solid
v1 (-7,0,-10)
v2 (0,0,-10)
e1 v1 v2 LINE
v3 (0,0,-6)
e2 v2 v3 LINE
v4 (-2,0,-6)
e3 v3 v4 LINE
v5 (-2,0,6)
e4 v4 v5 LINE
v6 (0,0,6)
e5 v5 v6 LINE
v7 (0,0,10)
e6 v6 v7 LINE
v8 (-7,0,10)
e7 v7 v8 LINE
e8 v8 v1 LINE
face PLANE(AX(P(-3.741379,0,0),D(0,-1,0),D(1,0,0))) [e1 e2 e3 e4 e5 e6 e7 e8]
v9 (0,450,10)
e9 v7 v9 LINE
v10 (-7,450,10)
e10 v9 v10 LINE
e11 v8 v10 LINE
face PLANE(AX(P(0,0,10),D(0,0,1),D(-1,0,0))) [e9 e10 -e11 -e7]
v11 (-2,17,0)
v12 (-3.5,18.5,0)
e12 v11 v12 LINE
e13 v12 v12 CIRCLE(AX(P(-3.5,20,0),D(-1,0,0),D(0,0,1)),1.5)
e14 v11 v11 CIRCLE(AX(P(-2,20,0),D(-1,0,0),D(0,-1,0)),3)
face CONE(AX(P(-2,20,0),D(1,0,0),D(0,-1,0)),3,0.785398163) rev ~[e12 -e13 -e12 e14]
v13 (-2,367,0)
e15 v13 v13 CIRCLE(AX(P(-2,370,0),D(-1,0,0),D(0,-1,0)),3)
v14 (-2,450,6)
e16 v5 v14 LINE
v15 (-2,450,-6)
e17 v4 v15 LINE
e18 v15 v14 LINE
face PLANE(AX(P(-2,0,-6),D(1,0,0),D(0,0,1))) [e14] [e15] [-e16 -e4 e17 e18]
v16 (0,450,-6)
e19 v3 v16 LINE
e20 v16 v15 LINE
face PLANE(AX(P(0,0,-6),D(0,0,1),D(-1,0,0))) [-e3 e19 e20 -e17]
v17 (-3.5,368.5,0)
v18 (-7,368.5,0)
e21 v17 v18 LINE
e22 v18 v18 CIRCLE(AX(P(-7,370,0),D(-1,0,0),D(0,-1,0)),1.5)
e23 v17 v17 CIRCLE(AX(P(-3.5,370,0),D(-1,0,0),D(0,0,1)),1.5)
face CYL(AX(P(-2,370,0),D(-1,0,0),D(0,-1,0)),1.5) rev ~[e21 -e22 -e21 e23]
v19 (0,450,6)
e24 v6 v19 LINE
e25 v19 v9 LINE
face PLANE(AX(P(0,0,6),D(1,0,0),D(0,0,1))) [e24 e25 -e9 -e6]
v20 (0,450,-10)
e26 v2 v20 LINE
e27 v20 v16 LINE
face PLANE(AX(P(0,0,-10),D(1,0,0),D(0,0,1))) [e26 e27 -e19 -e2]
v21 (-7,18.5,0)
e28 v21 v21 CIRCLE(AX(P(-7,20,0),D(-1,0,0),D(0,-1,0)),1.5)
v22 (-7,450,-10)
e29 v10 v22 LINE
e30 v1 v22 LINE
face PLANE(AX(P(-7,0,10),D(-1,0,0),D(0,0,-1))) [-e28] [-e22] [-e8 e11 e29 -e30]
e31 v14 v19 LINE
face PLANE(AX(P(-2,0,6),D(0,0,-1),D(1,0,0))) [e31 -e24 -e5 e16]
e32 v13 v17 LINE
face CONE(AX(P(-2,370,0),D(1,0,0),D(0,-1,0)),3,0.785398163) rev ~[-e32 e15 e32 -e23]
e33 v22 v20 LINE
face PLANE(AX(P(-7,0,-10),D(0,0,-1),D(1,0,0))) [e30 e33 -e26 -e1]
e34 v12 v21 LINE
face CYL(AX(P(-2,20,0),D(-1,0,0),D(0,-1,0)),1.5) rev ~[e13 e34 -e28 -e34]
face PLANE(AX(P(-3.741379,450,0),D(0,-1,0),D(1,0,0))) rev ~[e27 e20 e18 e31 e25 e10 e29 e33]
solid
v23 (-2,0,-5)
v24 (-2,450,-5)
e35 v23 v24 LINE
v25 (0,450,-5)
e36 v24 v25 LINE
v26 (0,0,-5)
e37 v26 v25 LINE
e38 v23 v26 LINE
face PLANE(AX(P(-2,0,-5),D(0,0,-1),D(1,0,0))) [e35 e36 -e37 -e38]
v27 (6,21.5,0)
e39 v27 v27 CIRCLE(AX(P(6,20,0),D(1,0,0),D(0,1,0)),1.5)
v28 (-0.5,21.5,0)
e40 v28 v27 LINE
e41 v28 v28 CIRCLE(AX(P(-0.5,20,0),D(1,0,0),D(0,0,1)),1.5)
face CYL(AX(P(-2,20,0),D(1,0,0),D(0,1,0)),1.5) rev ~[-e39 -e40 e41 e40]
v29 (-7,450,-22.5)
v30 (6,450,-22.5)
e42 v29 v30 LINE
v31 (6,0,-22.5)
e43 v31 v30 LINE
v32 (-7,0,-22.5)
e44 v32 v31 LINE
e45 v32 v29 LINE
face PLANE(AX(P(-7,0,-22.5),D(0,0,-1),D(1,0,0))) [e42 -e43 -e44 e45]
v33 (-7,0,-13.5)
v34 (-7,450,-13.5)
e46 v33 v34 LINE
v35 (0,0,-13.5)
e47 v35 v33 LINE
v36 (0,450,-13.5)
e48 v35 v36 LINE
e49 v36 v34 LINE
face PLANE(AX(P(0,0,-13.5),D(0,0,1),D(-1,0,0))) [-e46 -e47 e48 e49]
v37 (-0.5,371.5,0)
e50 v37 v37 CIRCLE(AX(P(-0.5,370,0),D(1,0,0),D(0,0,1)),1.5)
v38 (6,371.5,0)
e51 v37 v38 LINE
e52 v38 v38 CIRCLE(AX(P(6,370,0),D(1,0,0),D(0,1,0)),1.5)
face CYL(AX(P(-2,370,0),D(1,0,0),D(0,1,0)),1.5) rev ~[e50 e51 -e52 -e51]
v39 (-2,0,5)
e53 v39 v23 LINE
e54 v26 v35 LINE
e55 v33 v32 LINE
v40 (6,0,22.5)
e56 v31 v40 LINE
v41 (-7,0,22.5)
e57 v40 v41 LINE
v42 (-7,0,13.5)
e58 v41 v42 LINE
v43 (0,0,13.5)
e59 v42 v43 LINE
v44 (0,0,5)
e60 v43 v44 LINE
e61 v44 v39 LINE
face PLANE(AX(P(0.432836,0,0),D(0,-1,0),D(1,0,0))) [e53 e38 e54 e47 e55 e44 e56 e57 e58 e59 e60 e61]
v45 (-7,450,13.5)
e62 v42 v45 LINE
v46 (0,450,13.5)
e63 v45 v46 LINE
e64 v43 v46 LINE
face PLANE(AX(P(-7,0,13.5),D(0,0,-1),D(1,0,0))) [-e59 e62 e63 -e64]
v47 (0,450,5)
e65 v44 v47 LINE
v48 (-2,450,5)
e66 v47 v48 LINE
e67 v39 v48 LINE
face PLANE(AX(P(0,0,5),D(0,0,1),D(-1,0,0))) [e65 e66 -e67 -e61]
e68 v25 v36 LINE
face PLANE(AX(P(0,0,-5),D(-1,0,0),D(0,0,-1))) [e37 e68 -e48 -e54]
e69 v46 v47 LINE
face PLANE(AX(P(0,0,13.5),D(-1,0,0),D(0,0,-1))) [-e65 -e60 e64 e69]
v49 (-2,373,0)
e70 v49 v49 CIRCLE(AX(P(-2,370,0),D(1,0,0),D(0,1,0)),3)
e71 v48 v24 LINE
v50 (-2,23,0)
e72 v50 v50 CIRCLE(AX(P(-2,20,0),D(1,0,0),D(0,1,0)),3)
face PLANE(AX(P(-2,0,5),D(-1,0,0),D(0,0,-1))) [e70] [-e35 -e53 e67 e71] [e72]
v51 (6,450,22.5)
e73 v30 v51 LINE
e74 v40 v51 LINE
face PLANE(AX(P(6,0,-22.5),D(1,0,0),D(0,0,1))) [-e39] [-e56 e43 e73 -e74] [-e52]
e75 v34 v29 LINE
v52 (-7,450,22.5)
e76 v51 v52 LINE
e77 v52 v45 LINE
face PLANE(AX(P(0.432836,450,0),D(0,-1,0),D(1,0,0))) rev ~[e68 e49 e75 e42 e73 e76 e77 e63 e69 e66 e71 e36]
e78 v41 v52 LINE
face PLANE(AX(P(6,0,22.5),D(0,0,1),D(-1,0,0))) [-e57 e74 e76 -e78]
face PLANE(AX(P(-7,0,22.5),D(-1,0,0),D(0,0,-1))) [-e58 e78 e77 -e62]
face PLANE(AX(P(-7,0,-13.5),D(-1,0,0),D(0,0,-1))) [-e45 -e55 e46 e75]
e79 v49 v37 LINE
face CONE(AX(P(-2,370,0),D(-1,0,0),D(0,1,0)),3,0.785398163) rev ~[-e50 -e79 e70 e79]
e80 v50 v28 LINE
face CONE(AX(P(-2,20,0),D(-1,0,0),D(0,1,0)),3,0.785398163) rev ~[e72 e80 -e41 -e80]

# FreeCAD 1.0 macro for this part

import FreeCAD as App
import Part
import Sketcher

doc = App.newDocument("Part")
body = doc.addObject("PartDesign::Body", "Body")

# Sketch on XZ plane
sketch1 = body.newObject("Sketcher::SketchObject", "Sketch")
sketch1.AttachmentSupport = (doc.getObject("XZ_Plane"), [""])
sketch1.MapMode = "FlatFace"
sketch1.addGeometry([
    Part.LineSegment(App.Vector(0, 10, 0), App.Vector(-7, 10, 0)),  # 0
    Part.LineSegment(App.Vector(-7, 10, 0), App.Vector(-7, -10, 0)),  # 1
    Part.LineSegment(App.Vector(-7, -10, 0), App.Vector(0, -10, 0)),  # 2
    Part.LineSegment(App.Vector(0, -10, 0), App.Vector(0, -6, 0)),  # 3
    Part.LineSegment(App.Vector(0, -6, 0), App.Vector(-2, -6, 0)),  # 4
    Part.LineSegment(App.Vector(-2, -6, 0), App.Vector(-2, 6, 0)),  # 5
    Part.LineSegment(App.Vector(-2, 6, 0), App.Vector(0, 6, 0)),  # 6
    Part.LineSegment(App.Vector(0, 6, 0), App.Vector(0, 10, 0)),  # 7
], False)
sketch1.addConstraint([
    Sketcher.Constraint("Coincident", 0, 2, 1, 1),
    Sketcher.Constraint("Coincident", 1, 2, 2, 1),
    Sketcher.Constraint("Coincident", 2, 2, 3, 1),
    Sketcher.Constraint("Coincident", 3, 2, 4, 1),
    Sketcher.Constraint("Coincident", 4, 2, 5, 1),
    Sketcher.Constraint("Coincident", 5, 2, 6, 1),
    Sketcher.Constraint("Coincident", 6, 2, 7, 1),
    Sketcher.Constraint("Coincident", 7, 2, 0, 1),
    Sketcher.Constraint("Horizontal", 0),
    Sketcher.Constraint("Vertical", 1),
    Sketcher.Constraint("Horizontal", 2),
    Sketcher.Constraint("Vertical", 3),
    Sketcher.Constraint("Horizontal", 4),
    Sketcher.Constraint("Vertical", 5),
    Sketcher.Constraint("Horizontal", 6),
    Sketcher.Constraint("Vertical", 7),
    Sketcher.Constraint("Symmetric", 3, 2, 6, 2, -1, 1),
    Sketcher.Constraint("Symmetric", 2, 2, 7, 2, -1),
    Sketcher.Constraint("DistanceX", 0, 2, 0, 1, 7.0),
    Sketcher.Constraint("DistanceX", 4, 2, 4, 1, 2.0),
    Sketcher.Constraint("DistanceY", 1, 2, 1, 1, 20.0),
    Sketcher.Constraint("DistanceY", 3, 1, 3, 2, 4.0),
])
pad1 = body.newObject("PartDesign::Pad", "Pad")
pad1.Profile = sketch1
pad1.Length = 450
pad1.Reversed = True

# Sketch on YZ plane
sketch2 = body.newObject("Sketcher::SketchObject", "Sketch001")
sketch2.AttachmentSupport = (doc.getObject("YZ_Plane"), [""])
sketch2.MapMode = "FlatFace"
sketch2.AttachmentOffset = App.Placement(App.Vector(0, 0, -2), App.Rotation())
sketch2.addGeometry([
    Part.Circle(App.Vector(20, 0, 0), App.Vector(0, 0, 1), 1.5),
    Part.Circle(App.Vector(370, 0, 0), App.Vector(0, 0, 1), 1.5),
], False)
sketch2.addConstraint([
    Sketcher.Constraint("Equal", 0, 1),
    Sketcher.Constraint("PointOnObject", 0, 3, -1),
    Sketcher.Constraint("PointOnObject", 1, 3, -1),
    Sketcher.Constraint("Diameter", 0, 3.0),
    Sketcher.Constraint("DistanceX", -1, 1, 0, 3, 20.0),
    Sketcher.Constraint("DistanceX", -1, 1, 1, 3, 370.0),
])
doc.recompute()
hole = body.newObject("PartDesign::Hole", "Hole")
hole.Profile = sketch2
hole.ThreadType = "None"
hole.Diameter = 3
hole.DepthType = "ThroughAll"
hole.HoleCutType = "Countersink"
hole.HoleCutDiameter = 6
hole.HoleCutCountersinkAngle = 90
body2 = doc.addObject("PartDesign::Body", "Body001")

# Sketch on XZ plane
sketch3 = body2.newObject("Sketcher::SketchObject", "Sketch002")
sketch3.AttachmentSupport = (doc.getObject("XZ_Plane001"), [""])
sketch3.MapMode = "FlatFace"
sketch3.addGeometry([
    Part.LineSegment(App.Vector(6, 22.5, 0), App.Vector(-7, 22.5, 0)),  # 0
    Part.LineSegment(App.Vector(-7, 22.5, 0), App.Vector(-7, 13.5, 0)),  # 1
    Part.LineSegment(App.Vector(-7, 13.5, 0), App.Vector(0, 13.5, 0)),  # 2
    Part.LineSegment(App.Vector(0, 13.5, 0), App.Vector(0, 5, 0)),  # 3
    Part.LineSegment(App.Vector(0, 5, 0), App.Vector(-2, 5, 0)),  # 4
    Part.LineSegment(App.Vector(-2, 5, 0), App.Vector(-2, -5, 0)),  # 5
    Part.LineSegment(App.Vector(-2, -5, 0), App.Vector(0, -5, 0)),  # 6
    Part.LineSegment(App.Vector(0, -5, 0), App.Vector(0, -13.5, 0)),  # 7
    Part.LineSegment(App.Vector(0, -13.5, 0), App.Vector(-7, -13.5, 0)),  # 8
    Part.LineSegment(App.Vector(-7, -13.5, 0), App.Vector(-7, -22.5, 0)),  # 9
    Part.LineSegment(App.Vector(-7, -22.5, 0), App.Vector(6, -22.5, 0)),  # 10
    Part.LineSegment(App.Vector(6, -22.5, 0), App.Vector(6, 22.5, 0)),  # 11
], False)
sketch3.addConstraint([
    Sketcher.Constraint("Coincident", 0, 2, 1, 1),
    Sketcher.Constraint("Coincident", 1, 2, 2, 1),
    Sketcher.Constraint("Coincident", 2, 2, 3, 1),
    Sketcher.Constraint("Coincident", 3, 2, 4, 1),
    Sketcher.Constraint("Coincident", 4, 2, 5, 1),
    Sketcher.Constraint("Coincident", 5, 2, 6, 1),
    Sketcher.Constraint("Coincident", 6, 2, 7, 1),
    Sketcher.Constraint("Coincident", 7, 2, 8, 1),
    Sketcher.Constraint("Coincident", 8, 2, 9, 1),
    Sketcher.Constraint("Coincident", 9, 2, 10, 1),
    Sketcher.Constraint("Coincident", 10, 2, 11, 1),
    Sketcher.Constraint("Coincident", 11, 2, 0, 1),
    Sketcher.Constraint("Horizontal", 0),
    Sketcher.Constraint("Vertical", 1),
    Sketcher.Constraint("Horizontal", 2),
    Sketcher.Constraint("Vertical", 3),
    Sketcher.Constraint("Horizontal", 4),
    Sketcher.Constraint("Vertical", 5),
    Sketcher.Constraint("Horizontal", 6),
    Sketcher.Constraint("Vertical", 7),
    Sketcher.Constraint("Horizontal", 8),
    Sketcher.Constraint("Vertical", 9),
    Sketcher.Constraint("Horizontal", 10),
    Sketcher.Constraint("Vertical", 11),
    Sketcher.Constraint("Symmetric", 3, 2, 6, 2, -1, 1),
    Sketcher.Constraint("Symmetric", 2, 2, 7, 2, -1),
    Sketcher.Constraint("Symmetric", 0, 2, 9, 2, -1),
    Sketcher.Constraint("DistanceX", 0, 2, 0, 1, 13.0),
    Sketcher.Constraint("DistanceX", 2, 1, 2, 2, 7.0),
    Sketcher.Constraint("DistanceX", 4, 2, 4, 1, 2.0),
    Sketcher.Constraint("DistanceY", 1, 2, 1, 1, 9.0),
    Sketcher.Constraint("DistanceY", 5, 2, 5, 1, 10.0),
    Sketcher.Constraint("DistanceY", 11, 1, 11, 2, 45.0),
])
pad2 = body2.newObject("PartDesign::Pad", "Pad001")
pad2.Profile = sketch3
pad2.Length = 450
pad2.Reversed = True

# Sketch on YZ plane
sketch4 = body2.newObject("Sketcher::SketchObject", "Sketch003")
sketch4.AttachmentSupport = (doc.getObject("YZ_Plane001"), [""])
sketch4.MapMode = "FlatFace"
sketch4.AttachmentOffset = App.Placement(App.Vector(0, 0, -2), App.Rotation())
sketch4.addGeometry([
    Part.Circle(App.Vector(20, 0, 0), App.Vector(0, 0, 1), 1.5),
    Part.Circle(App.Vector(370, 0, 0), App.Vector(0, 0, 1), 1.5),
], False)
sketch4.addConstraint([
    Sketcher.Constraint("Equal", 0, 1),
    Sketcher.Constraint("PointOnObject", 0, 3, -1),
    Sketcher.Constraint("PointOnObject", 1, 3, -1),
    Sketcher.Constraint("Diameter", 0, 3.0),
    Sketcher.Constraint("DistanceX", -1, 1, 0, 3, 20.0),
    Sketcher.Constraint("DistanceX", -1, 1, 1, 3, 370.0),
])
doc.recompute()
hole2 = body2.newObject("PartDesign::Hole", "Hole001")
hole2.Profile = sketch4
hole2.ThreadType = "None"
hole2.Diameter = 3
hole2.DepthType = "ThroughAll"
hole2.HoleCutType = "Countersink"
hole2.HoleCutDiameter = 6
hole2.HoleCutCountersinkAngle = 90
hole2.Reversed = True

doc.recompute()
